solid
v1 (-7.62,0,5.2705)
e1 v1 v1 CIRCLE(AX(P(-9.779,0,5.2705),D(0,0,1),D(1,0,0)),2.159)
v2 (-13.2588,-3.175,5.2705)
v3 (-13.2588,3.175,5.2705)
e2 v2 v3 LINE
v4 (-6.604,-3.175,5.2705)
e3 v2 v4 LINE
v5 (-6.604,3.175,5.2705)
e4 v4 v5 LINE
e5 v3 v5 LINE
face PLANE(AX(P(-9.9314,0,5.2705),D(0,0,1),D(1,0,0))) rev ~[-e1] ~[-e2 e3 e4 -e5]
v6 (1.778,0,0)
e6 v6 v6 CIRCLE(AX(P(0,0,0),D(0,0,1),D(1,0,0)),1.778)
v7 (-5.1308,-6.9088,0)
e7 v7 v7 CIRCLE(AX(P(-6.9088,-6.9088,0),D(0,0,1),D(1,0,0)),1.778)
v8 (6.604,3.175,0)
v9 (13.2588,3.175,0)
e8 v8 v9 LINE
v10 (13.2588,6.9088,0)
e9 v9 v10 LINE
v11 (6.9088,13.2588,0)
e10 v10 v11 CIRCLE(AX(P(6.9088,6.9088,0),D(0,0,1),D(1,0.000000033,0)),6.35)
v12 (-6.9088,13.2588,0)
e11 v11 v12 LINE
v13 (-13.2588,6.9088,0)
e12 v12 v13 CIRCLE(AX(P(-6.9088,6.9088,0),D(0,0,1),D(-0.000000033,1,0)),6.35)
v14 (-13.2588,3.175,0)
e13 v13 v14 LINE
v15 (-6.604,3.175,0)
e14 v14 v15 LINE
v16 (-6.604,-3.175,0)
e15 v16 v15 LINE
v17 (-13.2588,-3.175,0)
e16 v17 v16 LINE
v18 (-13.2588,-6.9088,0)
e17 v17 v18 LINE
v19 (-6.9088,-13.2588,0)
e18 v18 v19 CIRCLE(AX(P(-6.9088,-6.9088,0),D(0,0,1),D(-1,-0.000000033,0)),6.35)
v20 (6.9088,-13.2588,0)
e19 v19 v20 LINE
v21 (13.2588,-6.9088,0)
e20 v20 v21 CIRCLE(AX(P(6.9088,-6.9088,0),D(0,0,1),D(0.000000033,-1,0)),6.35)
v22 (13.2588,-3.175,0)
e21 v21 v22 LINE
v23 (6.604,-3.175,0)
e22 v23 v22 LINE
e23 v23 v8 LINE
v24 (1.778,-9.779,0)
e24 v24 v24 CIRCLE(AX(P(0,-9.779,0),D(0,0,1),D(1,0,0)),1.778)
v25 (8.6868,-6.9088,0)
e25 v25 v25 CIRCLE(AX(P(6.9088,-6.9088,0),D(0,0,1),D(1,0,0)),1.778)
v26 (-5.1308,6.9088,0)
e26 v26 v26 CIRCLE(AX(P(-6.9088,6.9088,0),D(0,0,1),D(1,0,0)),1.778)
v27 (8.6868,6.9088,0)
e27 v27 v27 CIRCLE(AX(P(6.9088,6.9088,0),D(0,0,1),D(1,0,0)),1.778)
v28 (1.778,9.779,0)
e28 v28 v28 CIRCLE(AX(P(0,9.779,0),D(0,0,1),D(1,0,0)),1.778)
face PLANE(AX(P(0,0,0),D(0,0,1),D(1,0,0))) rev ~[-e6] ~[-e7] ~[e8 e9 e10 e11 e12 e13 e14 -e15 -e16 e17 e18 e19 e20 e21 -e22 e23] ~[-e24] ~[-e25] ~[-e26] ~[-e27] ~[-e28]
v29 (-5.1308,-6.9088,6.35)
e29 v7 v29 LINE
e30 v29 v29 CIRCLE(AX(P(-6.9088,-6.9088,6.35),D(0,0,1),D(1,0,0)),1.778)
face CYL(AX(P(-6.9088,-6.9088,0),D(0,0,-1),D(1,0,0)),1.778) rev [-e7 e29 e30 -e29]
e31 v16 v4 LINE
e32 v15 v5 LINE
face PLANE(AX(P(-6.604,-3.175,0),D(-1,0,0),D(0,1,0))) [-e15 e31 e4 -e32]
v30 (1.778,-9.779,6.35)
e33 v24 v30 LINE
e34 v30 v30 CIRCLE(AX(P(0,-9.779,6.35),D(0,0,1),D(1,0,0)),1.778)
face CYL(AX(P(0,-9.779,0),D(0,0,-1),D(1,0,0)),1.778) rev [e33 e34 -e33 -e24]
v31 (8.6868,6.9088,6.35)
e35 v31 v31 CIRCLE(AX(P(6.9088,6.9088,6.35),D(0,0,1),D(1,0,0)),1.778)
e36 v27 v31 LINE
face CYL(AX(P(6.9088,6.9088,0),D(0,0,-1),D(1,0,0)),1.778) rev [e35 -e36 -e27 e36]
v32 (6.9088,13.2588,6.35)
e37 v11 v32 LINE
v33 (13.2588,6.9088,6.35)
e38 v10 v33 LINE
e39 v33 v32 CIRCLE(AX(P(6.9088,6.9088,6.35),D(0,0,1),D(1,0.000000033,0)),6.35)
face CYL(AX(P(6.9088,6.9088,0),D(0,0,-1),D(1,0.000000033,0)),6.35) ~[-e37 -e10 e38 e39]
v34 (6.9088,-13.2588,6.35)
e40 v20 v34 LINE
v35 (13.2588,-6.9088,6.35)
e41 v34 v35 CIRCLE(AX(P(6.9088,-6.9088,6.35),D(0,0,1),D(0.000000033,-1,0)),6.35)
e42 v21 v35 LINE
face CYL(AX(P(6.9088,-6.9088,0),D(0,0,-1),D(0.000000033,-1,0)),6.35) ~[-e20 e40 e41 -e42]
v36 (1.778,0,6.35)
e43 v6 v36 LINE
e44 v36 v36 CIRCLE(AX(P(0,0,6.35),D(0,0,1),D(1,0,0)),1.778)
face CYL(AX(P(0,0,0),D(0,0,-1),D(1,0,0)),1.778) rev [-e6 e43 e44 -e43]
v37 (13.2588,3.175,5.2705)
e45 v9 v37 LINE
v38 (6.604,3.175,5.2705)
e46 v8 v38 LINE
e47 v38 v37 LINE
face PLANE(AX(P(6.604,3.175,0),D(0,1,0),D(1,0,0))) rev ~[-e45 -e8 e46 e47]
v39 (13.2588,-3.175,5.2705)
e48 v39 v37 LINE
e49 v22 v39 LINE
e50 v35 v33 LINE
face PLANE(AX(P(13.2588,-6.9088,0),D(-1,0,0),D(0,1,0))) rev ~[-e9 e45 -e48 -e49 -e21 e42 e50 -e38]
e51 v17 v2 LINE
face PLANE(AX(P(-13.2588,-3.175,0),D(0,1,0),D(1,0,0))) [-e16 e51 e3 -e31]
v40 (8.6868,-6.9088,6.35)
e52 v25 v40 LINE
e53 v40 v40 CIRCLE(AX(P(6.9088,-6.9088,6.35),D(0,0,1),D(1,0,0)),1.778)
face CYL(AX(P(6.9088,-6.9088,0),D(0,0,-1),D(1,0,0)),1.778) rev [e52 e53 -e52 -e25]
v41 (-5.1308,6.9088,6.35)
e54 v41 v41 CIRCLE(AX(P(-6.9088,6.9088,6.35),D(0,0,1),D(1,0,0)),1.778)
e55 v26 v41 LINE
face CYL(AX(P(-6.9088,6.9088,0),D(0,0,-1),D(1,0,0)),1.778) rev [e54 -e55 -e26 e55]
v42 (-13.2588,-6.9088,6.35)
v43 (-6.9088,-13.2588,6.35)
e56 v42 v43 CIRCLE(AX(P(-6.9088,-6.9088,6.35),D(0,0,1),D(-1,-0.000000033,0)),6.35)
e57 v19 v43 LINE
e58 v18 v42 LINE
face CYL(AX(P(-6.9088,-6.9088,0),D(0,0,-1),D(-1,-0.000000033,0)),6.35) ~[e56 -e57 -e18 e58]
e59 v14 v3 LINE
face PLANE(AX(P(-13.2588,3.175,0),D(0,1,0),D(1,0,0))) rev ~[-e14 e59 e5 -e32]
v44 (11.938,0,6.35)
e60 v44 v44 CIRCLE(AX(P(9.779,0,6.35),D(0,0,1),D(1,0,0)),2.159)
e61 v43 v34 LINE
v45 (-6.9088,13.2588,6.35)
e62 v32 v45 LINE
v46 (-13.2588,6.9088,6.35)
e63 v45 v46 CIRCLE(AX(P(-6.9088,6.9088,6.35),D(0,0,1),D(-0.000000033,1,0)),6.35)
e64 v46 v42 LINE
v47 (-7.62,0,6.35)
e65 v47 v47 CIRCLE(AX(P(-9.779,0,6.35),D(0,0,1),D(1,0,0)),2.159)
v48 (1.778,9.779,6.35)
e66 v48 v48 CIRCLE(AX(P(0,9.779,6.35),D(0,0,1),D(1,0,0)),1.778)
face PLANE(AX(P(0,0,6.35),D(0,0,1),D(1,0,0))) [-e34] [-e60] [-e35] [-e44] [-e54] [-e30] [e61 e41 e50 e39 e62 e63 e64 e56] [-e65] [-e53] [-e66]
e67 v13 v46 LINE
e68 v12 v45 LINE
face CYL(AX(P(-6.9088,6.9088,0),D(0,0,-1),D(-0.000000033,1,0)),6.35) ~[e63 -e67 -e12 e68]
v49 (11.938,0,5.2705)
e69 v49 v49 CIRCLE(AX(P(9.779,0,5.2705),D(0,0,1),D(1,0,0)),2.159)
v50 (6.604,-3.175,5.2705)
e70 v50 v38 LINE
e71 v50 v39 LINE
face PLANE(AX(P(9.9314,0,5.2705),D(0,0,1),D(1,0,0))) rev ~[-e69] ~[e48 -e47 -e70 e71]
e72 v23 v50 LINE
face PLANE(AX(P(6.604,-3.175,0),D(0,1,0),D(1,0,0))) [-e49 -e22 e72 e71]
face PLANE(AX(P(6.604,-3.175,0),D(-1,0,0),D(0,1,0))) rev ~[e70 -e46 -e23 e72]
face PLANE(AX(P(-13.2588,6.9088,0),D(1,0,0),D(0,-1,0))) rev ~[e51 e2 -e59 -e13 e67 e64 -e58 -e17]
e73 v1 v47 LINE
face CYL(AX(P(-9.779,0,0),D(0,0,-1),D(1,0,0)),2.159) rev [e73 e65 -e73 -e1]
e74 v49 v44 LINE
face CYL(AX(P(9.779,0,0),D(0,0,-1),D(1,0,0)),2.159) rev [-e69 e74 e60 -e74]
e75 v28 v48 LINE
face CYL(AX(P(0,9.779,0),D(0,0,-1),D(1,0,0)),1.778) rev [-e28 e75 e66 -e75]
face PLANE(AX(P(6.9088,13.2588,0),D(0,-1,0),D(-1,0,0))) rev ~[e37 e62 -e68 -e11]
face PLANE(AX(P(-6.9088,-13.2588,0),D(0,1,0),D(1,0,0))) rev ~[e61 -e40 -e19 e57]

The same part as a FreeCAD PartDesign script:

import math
import FreeCAD as App
import Part
import Sketcher

V = App.Vector
Q = App.Units.Quantity


def add_polygon(sketch, points):
    """Adds a closed chain of lines whose ends are joined by coincident constraints."""
    first, n = sketch.GeometryCount, len(points)
    for a, b in zip(points, points[1:] + points[:1]):
        sketch.addGeometry(Part.LineSegment(App.Vector(*a, 0), App.Vector(*b, 0)), False)
    for i in range(n):
        sketch.addConstraint(Sketcher.Constraint("Coincident", first + i, 2, first + (i + 1) % n, 1))

doc = App.newDocument("Part")
params = doc.addObject("Spreadsheet::Sheet", "Params")
for row, (alias, value) in enumerate([
    ("sketch1_diameter", "0.14 in"),
    ("sketch1_diameter2", "0.17 in"),
    ("sketch1_radius", "0.25 in"),
    ("sketch1_width", "0.544 in"),
    ("pad1_length", "0.25 in"),
    ("sketch2_diameter", "0.17 in"),
    ("sketch2_height", "0.25 in"),
    ("sketch2_width", "0.262 in"),
    ("pocket1_length", "0.2075 in"),
], start=1):
    params.set(f"A{row}", alias)
    params.set(f"B{row}", "=" + value)
    params.setAlias(f"B{row}", alias)

body = doc.addObject("PartDesign::Body", "Body")

sketch1 = doc.addObject("Sketcher::SketchObject", "Sketch")
body.addObject(sketch1)
sketch1.AttachmentSupport = (doc.XY_Plane, [""])
sketch1.MapMode = "FlatFace"
sketch1.addGeometry([
    Part.ArcOfCircle(Part.Circle(V(6.9088, 6.9088, 0), V(0, 0, 1), 6.35), math.radians(0.000002), math.radians(89.999998)),
    Part.LineSegment(V(6.9088, 13.2588, 0), V(-6.9088, 13.2588, 0)),
    Part.ArcOfCircle(Part.Circle(V(-6.9088, 6.9088, 0), V(0, 0, 1), 6.35), math.radians(90.000002), math.radians(179.999998)),
    Part.LineSegment(V(-13.2588, 6.9088, 0), V(-13.2588, -6.9088, 0)),
    Part.ArcOfCircle(Part.Circle(V(-6.9088, -6.9088, 0), V(0, 0, 1), 6.35), math.radians(-179.999998), math.radians(-90.000002)),
    Part.LineSegment(V(-6.9088, -13.2588, 0), V(6.9088, -13.2588, 0)),
    Part.ArcOfCircle(Part.Circle(V(6.9088, -6.9088, 0), V(0, 0, 1), 6.35), math.radians(-89.999998), math.radians(-0.000002)),
    Part.LineSegment(V(13.2588, -6.9088, 0), V(13.2588, 6.9088, 0)),
    Part.Circle(V(-6.9088, -6.9088, 0), V(0, 0, 1), 1.778),
    Part.Circle(V(0, -9.779, 0), V(0, 0, 1), 1.778),
    Part.Circle(V(-9.779, 0, 0), V(0, 0, 1), 2.159),
    Part.Circle(V(0, 0, 0), V(0, 0, 1), 1.778),
    Part.Circle(V(6.9088, -6.9088, 0), V(0, 0, 1), 1.778),
    Part.Circle(V(9.779, 0, 0), V(0, 0, 1), 2.159),
    Part.Circle(V(-6.9088, 6.9088, 0), V(0, 0, 1), 1.778),
    Part.Circle(V(0, 9.779, 0), V(0, 0, 1), 1.778),
    Part.Circle(V(6.9088, 6.9088, 0), V(0, 0, 1), 1.778),
], False)
sketch1.addConstraint([
    Sketcher.Constraint("Tangent", 0, 2, 1, 1),
    Sketcher.Constraint("Tangent", 1, 2, 2, 1),
    Sketcher.Constraint("Tangent", 2, 2, 3, 1),
    Sketcher.Constraint("Tangent", 3, 2, 4, 1),
    Sketcher.Constraint("Tangent", 4, 2, 5, 1),
    Sketcher.Constraint("Tangent", 5, 2, 6, 1),
    Sketcher.Constraint("Tangent", 6, 2, 7, 1),
    Sketcher.Constraint("Tangent", 7, 2, 0, 1),
    Sketcher.Constraint("Horizontal", 1),
    Sketcher.Constraint("Vertical", 3),
    Sketcher.Constraint("Horizontal", 5),
    Sketcher.Constraint("Vertical", 7),
    Sketcher.Constraint("Coincident", 11, 3, -1, 1),
    Sketcher.Constraint("Coincident", 8, 3, 4, 3),
    Sketcher.Constraint("Coincident", 12, 3, 6, 3),
    Sketcher.Constraint("Coincident", 14, 3, 2, 3),
    Sketcher.Constraint("Coincident", 16, 3, 0, 3),
    Sketcher.Constraint("Equal", 0, 2),
    Sketcher.Constraint("Equal", 2, 4),
    Sketcher.Constraint("Equal", 4, 6),
    Sketcher.Constraint("Equal", 8, 9),
    Sketcher.Constraint("Equal", 9, 11),
    Sketcher.Constraint("Equal", 11, 12),
    Sketcher.Constraint("Equal", 10, 13),
    Sketcher.Constraint("Equal", 12, 14),
    Sketcher.Constraint("Equal", 14, 15),
    Sketcher.Constraint("Equal", 15, 16),
    Sketcher.Constraint("Symmetric", 0, 3, 4, 3, -1, 1),
    Sketcher.Constraint("Symmetric", 10, 3, 13, 3, -1, 1),
    Sketcher.Constraint("Symmetric", 9, 3, 15, 3, -1, 1),
    Sketcher.Constraint("PointOnObject", 9, 3, -2),
    Sketcher.Constraint("PointOnObject", 10, 3, -1),
    Sketcher.Constraint("Equal", 5, 3),
    Sketcher.Constraint("Diameter", 8, Q("0.14 in")),
    Sketcher.Constraint("Diameter", 10, Q("0.17 in")),
    Sketcher.Constraint("Radius", 0, Q("0.25 in")),
    Sketcher.Constraint("DistanceX", 1, 2, 1, 1, Q("0.544 in")),
    Sketcher.Constraint("DistanceY", 9, 3, -1, 1, Q("0.385 in")),
    Sketcher.Constraint("DistanceX", 10, 3, -1, 1, Q("0.385 in")),
])
sketch1.setExpression("Constraints[33]", "Params.sketch1_diameter")
sketch1.setExpression("Constraints[34]", "Params.sketch1_diameter2")
sketch1.setExpression("Constraints[35]", "Params.sketch1_radius")
sketch1.setExpression("Constraints[36]", "Params.sketch1_width")
pad1 = doc.addObject("PartDesign::Pad", "Pad")
body.addObject(pad1)
pad1.Profile = sketch1
pad1.setExpression("Length", "Params.pad1_length")

sketch2 = doc.addObject("Sketcher::SketchObject", "Sketch001")
body.addObject(sketch2)
sketch2.AttachmentSupport = (doc.XY_Plane, [""])
sketch2.MapMode = "FlatFace"
add_polygon(sketch2, [(-13.2588, 3.175), (-13.2588, -3.175), (-6.604, -3.175), (-6.604, 3.175)])
sketch2.addGeometry(Part.Circle(V(-9.779, 0, 0), V(0, 0, 1), 2.159), False)
add_polygon(sketch2, [(6.604, 3.175), (6.604, -3.175), (13.2588, -3.175), (13.2588, 3.175)])
sketch2.addGeometry(Part.Circle(V(9.779, 0, 0), V(0, 0, 1), 2.159), False)
sketch2.addConstraint([
    Sketcher.Constraint("Vertical", 0),
    Sketcher.Constraint("Horizontal", 1),
    Sketcher.Constraint("Vertical", 2),
    Sketcher.Constraint("Horizontal", 3),
    Sketcher.Constraint("Vertical", 5),
    Sketcher.Constraint("Horizontal", 6),
    Sketcher.Constraint("Vertical", 7),
    Sketcher.Constraint("Horizontal", 8),
    Sketcher.Constraint("Equal", 4, 9),
    Sketcher.Constraint("Symmetric", 4, 3, 9, 3, -1, 1),
    Sketcher.Constraint("Symmetric", 2, 2, 5, 2, -1, 1),
    Sketcher.Constraint("Symmetric", 0, 2, 7, 2, -1, 1),
    Sketcher.Constraint("PointOnObject", 4, 3, -1),
    Sketcher.Constraint("Horizontal", 1, 2, 5, 2),
    Sketcher.Constraint("Diameter", 4, Q("0.17 in")),
    Sketcher.Constraint("DistanceY", 0, 2, 0, 1, Q("0.25 in")),
    Sketcher.Constraint("DistanceX", 1, 1, 1, 2, Q("0.262 in")),
    Sketcher.Constraint("DistanceX", 1, 2, -1, 1, Q("0.26 in")),
    Sketcher.Constraint("DistanceX", 4, 3, 9, 3, Q("0.77 in")),
])
sketch2.setExpression("Constraints[22]", "Params.sketch2_diameter")
sketch2.setExpression("Constraints[23]", "Params.sketch2_height")
sketch2.setExpression("Constraints[24]", "Params.sketch2_width")
pocket1 = doc.addObject("PartDesign::Pocket", "Pocket")
body.addObject(pocket1)
pocket1.Profile = sketch2
pocket1.setExpression("Length", "Params.pocket1_length")
pocket1.Reversed = True

doc.recompute()
